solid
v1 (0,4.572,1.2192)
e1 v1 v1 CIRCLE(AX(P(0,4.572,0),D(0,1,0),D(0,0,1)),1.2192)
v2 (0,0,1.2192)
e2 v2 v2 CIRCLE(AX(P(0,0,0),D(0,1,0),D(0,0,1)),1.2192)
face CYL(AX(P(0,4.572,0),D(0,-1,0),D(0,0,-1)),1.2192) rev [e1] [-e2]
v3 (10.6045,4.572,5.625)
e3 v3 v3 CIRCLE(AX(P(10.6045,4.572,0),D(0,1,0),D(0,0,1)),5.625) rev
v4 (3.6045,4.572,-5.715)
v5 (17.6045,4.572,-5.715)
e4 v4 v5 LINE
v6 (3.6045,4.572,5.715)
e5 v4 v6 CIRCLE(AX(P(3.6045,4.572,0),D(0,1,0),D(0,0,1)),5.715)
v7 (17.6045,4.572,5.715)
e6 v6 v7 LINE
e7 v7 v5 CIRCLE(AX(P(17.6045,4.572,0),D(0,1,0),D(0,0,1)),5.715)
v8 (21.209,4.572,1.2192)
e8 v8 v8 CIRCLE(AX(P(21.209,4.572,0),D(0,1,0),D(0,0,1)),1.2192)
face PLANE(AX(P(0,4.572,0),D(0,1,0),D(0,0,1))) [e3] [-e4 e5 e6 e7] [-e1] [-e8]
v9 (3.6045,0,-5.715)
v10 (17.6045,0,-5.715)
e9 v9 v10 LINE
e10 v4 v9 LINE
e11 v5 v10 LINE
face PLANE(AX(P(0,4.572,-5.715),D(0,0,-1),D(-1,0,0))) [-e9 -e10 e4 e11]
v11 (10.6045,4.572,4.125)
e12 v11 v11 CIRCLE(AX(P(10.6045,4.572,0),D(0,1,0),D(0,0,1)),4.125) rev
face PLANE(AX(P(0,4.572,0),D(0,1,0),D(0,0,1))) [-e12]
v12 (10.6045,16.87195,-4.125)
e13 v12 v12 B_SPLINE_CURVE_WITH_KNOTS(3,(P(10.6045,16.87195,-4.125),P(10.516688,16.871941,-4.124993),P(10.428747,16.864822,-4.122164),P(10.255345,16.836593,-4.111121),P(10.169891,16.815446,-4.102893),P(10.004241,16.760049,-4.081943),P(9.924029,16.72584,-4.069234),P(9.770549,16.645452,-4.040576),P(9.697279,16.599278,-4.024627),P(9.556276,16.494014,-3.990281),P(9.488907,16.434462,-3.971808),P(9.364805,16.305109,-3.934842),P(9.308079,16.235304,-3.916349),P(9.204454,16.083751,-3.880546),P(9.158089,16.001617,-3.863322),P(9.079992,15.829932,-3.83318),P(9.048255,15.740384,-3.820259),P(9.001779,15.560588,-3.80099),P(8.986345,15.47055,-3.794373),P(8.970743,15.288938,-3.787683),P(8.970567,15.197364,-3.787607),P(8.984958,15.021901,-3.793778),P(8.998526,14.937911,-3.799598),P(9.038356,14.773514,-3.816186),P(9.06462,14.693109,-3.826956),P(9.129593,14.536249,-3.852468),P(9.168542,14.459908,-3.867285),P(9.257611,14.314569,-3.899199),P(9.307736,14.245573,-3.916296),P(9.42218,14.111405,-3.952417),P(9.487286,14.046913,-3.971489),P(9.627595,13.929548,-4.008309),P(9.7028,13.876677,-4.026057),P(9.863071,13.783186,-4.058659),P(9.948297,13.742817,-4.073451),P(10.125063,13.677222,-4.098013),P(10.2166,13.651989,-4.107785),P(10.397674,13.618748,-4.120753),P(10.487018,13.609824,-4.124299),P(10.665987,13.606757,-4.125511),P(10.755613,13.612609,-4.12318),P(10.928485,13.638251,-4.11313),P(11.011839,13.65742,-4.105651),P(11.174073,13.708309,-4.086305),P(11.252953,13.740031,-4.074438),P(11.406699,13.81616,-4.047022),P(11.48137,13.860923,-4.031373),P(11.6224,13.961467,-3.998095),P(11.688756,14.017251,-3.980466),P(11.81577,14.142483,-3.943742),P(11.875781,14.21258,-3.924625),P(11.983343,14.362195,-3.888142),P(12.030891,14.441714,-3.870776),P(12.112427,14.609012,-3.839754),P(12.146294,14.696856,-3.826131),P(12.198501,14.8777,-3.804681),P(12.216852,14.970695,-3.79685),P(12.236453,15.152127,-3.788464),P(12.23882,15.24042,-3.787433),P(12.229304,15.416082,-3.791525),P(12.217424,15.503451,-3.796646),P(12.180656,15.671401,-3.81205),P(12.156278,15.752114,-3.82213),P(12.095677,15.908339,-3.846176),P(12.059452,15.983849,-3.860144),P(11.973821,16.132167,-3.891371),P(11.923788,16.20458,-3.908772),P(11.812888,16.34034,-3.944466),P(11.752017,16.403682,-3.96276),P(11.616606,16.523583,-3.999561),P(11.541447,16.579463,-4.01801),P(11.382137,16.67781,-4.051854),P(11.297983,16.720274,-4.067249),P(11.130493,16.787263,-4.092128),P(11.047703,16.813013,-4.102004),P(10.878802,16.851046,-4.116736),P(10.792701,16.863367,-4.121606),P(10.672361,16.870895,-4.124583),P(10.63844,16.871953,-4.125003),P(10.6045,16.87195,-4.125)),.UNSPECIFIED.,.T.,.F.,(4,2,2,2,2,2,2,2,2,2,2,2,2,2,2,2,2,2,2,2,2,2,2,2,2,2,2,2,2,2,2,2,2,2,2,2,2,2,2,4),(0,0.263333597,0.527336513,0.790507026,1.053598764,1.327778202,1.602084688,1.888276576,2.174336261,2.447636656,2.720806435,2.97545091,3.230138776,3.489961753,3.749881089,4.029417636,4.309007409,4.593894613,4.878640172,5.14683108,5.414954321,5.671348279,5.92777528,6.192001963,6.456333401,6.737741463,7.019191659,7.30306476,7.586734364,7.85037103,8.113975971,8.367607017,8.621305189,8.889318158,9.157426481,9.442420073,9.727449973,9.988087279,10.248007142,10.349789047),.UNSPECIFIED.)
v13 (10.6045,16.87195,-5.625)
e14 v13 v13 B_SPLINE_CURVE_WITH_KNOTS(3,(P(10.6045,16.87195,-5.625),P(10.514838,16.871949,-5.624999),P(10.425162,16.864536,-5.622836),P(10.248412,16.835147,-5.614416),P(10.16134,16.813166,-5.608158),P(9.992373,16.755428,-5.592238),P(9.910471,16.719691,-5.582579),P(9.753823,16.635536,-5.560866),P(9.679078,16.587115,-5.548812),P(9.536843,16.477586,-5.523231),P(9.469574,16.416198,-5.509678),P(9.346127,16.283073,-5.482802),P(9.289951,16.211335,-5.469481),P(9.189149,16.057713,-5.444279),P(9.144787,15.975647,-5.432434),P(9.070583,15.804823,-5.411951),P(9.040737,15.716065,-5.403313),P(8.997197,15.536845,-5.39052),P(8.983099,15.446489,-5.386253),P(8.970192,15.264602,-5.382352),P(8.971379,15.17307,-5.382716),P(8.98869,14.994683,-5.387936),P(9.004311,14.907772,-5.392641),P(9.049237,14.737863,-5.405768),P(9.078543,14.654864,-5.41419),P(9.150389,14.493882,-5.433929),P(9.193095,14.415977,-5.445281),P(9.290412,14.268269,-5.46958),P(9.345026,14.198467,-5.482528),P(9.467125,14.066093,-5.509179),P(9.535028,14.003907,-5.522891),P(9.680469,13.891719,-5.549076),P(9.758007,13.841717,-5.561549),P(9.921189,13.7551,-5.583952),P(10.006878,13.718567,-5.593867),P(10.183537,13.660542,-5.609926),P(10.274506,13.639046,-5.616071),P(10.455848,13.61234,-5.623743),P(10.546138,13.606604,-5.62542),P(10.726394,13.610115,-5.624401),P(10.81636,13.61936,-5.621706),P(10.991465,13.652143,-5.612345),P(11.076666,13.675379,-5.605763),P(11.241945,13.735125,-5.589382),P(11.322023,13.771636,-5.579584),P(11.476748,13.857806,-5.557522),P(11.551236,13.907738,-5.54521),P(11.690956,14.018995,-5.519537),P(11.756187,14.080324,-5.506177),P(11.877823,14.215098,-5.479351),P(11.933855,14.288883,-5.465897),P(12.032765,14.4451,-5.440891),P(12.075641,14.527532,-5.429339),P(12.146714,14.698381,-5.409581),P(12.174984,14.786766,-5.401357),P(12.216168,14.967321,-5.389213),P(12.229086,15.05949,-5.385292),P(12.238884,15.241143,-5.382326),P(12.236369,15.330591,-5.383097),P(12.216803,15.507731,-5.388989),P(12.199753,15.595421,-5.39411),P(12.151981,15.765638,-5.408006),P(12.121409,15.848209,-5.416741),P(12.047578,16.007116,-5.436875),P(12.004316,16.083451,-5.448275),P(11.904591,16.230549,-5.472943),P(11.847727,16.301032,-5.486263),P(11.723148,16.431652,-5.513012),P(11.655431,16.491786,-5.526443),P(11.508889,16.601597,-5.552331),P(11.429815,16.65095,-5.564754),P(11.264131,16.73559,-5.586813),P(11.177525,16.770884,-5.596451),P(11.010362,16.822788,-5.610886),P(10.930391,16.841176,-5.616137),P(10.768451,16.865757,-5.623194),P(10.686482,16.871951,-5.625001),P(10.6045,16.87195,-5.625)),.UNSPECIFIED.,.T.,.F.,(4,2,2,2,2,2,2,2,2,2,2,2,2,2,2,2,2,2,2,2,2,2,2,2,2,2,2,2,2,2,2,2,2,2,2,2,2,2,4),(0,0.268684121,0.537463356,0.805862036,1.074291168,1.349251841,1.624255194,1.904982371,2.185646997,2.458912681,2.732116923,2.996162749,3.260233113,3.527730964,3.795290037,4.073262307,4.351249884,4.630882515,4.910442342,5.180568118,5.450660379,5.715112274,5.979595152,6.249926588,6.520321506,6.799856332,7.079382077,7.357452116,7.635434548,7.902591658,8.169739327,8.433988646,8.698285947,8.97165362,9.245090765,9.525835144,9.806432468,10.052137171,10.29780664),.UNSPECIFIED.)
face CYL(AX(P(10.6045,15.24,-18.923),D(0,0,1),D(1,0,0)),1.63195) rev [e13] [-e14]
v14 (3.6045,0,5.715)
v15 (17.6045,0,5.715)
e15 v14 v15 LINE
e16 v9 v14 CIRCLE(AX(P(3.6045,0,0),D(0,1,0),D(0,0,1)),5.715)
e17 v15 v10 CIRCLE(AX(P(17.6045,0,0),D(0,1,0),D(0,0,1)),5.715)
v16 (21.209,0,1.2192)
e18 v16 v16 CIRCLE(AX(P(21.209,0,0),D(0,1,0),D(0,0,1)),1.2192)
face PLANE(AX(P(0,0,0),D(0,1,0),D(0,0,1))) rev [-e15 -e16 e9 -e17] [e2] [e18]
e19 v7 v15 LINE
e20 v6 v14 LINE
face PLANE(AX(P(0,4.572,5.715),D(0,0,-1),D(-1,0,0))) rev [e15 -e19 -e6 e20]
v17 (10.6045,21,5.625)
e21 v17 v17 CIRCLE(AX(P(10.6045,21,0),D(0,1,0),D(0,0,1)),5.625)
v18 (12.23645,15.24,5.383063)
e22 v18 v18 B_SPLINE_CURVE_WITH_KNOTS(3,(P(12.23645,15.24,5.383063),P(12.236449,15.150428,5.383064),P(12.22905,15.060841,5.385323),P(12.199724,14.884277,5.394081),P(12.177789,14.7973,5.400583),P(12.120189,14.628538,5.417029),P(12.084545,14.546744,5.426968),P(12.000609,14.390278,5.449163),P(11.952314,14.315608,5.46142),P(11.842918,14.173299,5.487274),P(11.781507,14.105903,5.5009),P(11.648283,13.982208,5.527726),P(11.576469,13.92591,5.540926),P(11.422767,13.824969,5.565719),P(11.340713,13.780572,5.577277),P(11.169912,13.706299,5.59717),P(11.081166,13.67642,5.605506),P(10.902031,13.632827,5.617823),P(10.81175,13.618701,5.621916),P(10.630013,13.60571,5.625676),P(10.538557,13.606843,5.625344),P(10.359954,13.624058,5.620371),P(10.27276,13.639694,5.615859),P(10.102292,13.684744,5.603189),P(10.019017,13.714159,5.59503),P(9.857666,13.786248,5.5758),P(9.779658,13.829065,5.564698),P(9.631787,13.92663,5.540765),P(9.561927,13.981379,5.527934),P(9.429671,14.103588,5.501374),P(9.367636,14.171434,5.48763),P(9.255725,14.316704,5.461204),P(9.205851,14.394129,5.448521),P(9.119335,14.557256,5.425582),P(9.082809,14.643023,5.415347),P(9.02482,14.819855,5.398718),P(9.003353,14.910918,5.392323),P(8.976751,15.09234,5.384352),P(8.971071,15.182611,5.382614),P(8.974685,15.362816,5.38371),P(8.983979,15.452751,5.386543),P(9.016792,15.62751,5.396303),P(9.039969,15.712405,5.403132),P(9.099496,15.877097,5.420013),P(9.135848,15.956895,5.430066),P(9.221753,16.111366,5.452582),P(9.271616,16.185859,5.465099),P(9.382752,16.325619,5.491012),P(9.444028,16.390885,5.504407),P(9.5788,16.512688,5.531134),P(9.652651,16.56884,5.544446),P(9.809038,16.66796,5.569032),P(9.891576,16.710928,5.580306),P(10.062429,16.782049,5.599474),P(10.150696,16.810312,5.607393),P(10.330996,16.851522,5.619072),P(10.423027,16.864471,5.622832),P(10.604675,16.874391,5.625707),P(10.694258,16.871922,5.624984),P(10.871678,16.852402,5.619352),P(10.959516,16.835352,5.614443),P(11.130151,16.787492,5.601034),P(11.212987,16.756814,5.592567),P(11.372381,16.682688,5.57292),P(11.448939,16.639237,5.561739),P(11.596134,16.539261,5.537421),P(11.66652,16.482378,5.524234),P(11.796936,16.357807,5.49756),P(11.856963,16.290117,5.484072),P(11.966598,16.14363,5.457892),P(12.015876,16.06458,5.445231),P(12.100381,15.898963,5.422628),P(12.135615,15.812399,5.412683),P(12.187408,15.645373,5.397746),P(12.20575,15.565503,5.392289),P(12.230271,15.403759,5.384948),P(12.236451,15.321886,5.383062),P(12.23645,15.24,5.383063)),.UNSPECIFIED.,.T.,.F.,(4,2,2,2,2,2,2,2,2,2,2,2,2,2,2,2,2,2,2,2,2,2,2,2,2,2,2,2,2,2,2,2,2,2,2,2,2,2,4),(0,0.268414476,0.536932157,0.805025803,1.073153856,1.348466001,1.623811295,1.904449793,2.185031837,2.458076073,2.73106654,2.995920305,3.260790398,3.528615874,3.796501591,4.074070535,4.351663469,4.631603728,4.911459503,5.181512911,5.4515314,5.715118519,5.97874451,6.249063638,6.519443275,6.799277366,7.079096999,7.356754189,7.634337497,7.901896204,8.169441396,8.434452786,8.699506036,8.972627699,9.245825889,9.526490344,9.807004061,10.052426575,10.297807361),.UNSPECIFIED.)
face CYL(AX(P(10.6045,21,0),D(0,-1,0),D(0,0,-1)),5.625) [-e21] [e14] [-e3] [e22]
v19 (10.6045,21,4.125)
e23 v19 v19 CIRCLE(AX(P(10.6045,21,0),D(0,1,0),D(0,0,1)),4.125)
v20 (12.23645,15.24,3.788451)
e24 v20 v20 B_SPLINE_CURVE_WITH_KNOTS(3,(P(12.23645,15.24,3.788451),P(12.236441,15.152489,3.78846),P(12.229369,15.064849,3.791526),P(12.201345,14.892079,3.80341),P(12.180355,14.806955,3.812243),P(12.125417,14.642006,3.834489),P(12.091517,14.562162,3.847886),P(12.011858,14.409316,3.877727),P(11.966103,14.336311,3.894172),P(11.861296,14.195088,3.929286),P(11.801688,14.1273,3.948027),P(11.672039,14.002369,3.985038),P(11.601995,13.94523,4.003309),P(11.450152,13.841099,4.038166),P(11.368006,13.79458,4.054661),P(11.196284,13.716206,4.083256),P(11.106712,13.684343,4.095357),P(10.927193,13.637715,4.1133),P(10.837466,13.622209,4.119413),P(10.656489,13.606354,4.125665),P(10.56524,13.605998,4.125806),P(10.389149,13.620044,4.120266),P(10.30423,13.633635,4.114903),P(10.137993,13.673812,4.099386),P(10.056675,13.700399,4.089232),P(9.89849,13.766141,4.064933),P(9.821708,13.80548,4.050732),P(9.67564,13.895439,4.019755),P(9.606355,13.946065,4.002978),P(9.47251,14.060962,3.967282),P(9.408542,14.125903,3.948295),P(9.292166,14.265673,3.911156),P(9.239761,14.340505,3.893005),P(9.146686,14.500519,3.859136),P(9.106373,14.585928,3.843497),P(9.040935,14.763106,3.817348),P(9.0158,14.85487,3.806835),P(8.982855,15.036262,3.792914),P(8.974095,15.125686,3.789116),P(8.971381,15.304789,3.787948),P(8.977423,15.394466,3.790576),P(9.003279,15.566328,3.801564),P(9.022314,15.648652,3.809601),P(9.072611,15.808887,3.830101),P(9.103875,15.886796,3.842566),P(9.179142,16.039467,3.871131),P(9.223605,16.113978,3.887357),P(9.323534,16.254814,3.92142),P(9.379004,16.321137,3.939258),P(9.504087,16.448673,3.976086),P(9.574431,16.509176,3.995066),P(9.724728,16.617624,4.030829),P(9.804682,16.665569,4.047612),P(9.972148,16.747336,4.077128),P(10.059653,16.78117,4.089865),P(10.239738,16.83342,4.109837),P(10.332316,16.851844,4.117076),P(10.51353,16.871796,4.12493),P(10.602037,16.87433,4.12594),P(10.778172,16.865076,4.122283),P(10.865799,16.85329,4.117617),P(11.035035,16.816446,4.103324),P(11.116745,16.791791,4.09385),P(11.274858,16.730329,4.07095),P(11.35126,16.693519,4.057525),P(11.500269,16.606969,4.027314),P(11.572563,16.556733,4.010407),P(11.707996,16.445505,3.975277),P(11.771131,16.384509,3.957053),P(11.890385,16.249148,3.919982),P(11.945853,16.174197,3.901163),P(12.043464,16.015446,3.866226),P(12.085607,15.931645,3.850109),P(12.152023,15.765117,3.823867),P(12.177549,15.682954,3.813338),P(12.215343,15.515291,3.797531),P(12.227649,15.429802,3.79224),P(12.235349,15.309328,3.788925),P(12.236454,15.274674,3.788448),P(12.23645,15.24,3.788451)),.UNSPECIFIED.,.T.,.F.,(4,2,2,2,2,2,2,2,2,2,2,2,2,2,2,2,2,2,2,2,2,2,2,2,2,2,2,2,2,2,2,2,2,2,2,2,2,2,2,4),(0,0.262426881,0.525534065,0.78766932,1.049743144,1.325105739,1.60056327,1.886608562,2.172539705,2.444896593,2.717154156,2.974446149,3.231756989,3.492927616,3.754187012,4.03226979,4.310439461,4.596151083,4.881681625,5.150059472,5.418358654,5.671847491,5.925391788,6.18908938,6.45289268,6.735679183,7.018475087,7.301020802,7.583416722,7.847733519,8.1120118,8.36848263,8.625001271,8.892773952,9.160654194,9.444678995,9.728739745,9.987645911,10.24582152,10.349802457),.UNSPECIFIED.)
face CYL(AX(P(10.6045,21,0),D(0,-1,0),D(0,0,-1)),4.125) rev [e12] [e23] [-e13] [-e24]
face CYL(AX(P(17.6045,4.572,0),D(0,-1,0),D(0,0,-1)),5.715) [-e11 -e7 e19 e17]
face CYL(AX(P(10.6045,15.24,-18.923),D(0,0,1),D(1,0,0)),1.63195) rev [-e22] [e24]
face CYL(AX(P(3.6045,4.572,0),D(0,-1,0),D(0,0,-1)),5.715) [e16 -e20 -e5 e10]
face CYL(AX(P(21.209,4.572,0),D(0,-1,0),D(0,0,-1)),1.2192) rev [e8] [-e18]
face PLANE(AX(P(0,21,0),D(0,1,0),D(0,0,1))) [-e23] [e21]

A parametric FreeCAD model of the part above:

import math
import FreeCAD as App
import Part
import Sketcher

V = App.Vector
Q = App.Units.Quantity

doc = App.newDocument("Part")
body = doc.addObject("PartDesign::Body", "Body")

# Sketch on XZ plane
sketch1 = body.newObject("Sketcher::SketchObject", "Sketch")
sketch1.AttachmentSupport = (doc.getObject("XZ_Plane"), [""])
sketch1.MapMode = "FlatFace"
sketch1.addGeometry(Part.LineSegment(V(17.6045, -5.715, 0), V(3.6045, -5.715, 0)), False)
sketch1.addGeometry(Part.ArcOfCircle(Part.Circle(V(3.6045, 0, 0), V(0, 0, 1), 5.715), math.radians(90), math.radians(270)), False)
sketch1.addGeometry(Part.LineSegment(V(3.6045, 5.715, 0), V(17.6045, 5.715, 0)), False)
sketch1.addGeometry(Part.ArcOfCircle(Part.Circle(V(17.6045, 0, 0), V(0, 0, 1), 5.715), math.radians(-90), math.radians(90)), False)
sketch1.addGeometry(Part.Circle(V(21.209, 0, 0), V(0, 0, 1), 1.2192), False)
sketch1.addGeometry(Part.Circle(V(0, 0, 0), V(0, 0, 1), 1.2192), False)
sketch1.addConstraint(Sketcher.Constraint("Tangent", 0, 2, 1, 2))
sketch1.addConstraint(Sketcher.Constraint("Tangent", 1, 1, 2, 1))
sketch1.addConstraint(Sketcher.Constraint("Tangent", 2, 2, 3, 2))
sketch1.addConstraint(Sketcher.Constraint("Tangent", 3, 1, 0, 1))
sketch1.addConstraint(Sketcher.Constraint("Horizontal", 0))
sketch1.addConstraint(Sketcher.Constraint("Horizontal", 2))
sketch1.addConstraint(Sketcher.Constraint("Coincident", 5, 3, -1, 1))
sketch1.addConstraint(Sketcher.Constraint("Equal", 4, 5))
sketch1.addConstraint(Sketcher.Constraint("PointOnObject", 1, 3, -1))
sketch1.addConstraint(Sketcher.Constraint("PointOnObject", 4, 3, -1))
sketch1.addConstraint(Sketcher.Constraint("Diameter", 4, Q("0.096 in")))
sketch1.addConstraint(Sketcher.Constraint("Radius", 1, Q("0.225 in")))
sketch1.addConstraint(Sketcher.Constraint("DistanceX", -1, 1, 4, 3, Q("0.835 in")))
sketch1.addConstraint(Sketcher.Constraint("DistanceX", 0, 2, 0, 1, 14.0))
sketch1.addConstraint(Sketcher.Constraint("DistanceX", -1, 1, 1, 3, 3.6045))
pad1 = body.newObject("PartDesign::Pad", "Pad")
pad1.Profile = sketch1
pad1.Length = Q("0.18 in")
pad1.Reversed = True

# Sketch on XZ plane
sketch2 = body.newObject("Sketcher::SketchObject", "Sketch001")
sketch2.AttachmentSupport = (doc.getObject("XZ_Plane"), [""])
sketch2.MapMode = "FlatFace"
sketch2.addGeometry(Part.Circle(V(10.6045, 0, 0), V(0, 0, 1), 5.625), False)
sketch2.addGeometry(Part.Circle(V(10.6045, 0, 0), V(0, 0, 1), 4.125), False)
sketch2.addConstraint(Sketcher.Constraint("Coincident", 1, 3, 0, 3))
sketch2.addConstraint(Sketcher.Constraint("PointOnObject", 0, 3, -1))
sketch2.addConstraint(Sketcher.Constraint("Diameter", 0, 11.25))
sketch2.addConstraint(Sketcher.Constraint("Diameter", 1, 8.25))
sketch2.addConstraint(Sketcher.Constraint("DistanceX", -1, 1, 0, 3, Q("0.4175 in")))
pad2 = body.newObject("PartDesign::Pad", "Pad001")
pad2.Profile = sketch2
pad2.Length = 21
pad2.Reversed = True

# Sketch on XY plane
sketch3 = body.newObject("Sketcher::SketchObject", "Sketch002")
sketch3.AttachmentSupport = (doc.getObject("XY_Plane"), [""])
sketch3.MapMode = "FlatFace"
sketch3.addGeometry(Part.Circle(V(10.6045, 15.24, 0), V(0, 0, 1), 1.63195), False)
sketch3.addConstraint(Sketcher.Constraint("Diameter", 0, Q("0.1285 in")))
sketch3.addConstraint(Sketcher.Constraint("DistanceY", -1, 1, 0, 3, Q("0.6 in")))
sketch3.addConstraint(Sketcher.Constraint("DistanceX", -1, 1, 0, 3, Q("0.4175 in")))
pocket1 = body.newObject("PartDesign::Pocket", "Pocket")
pocket1.Profile = sketch3
pocket1.Type = "ThroughAll"
pocket1.Midplane = True

doc.recompute()
